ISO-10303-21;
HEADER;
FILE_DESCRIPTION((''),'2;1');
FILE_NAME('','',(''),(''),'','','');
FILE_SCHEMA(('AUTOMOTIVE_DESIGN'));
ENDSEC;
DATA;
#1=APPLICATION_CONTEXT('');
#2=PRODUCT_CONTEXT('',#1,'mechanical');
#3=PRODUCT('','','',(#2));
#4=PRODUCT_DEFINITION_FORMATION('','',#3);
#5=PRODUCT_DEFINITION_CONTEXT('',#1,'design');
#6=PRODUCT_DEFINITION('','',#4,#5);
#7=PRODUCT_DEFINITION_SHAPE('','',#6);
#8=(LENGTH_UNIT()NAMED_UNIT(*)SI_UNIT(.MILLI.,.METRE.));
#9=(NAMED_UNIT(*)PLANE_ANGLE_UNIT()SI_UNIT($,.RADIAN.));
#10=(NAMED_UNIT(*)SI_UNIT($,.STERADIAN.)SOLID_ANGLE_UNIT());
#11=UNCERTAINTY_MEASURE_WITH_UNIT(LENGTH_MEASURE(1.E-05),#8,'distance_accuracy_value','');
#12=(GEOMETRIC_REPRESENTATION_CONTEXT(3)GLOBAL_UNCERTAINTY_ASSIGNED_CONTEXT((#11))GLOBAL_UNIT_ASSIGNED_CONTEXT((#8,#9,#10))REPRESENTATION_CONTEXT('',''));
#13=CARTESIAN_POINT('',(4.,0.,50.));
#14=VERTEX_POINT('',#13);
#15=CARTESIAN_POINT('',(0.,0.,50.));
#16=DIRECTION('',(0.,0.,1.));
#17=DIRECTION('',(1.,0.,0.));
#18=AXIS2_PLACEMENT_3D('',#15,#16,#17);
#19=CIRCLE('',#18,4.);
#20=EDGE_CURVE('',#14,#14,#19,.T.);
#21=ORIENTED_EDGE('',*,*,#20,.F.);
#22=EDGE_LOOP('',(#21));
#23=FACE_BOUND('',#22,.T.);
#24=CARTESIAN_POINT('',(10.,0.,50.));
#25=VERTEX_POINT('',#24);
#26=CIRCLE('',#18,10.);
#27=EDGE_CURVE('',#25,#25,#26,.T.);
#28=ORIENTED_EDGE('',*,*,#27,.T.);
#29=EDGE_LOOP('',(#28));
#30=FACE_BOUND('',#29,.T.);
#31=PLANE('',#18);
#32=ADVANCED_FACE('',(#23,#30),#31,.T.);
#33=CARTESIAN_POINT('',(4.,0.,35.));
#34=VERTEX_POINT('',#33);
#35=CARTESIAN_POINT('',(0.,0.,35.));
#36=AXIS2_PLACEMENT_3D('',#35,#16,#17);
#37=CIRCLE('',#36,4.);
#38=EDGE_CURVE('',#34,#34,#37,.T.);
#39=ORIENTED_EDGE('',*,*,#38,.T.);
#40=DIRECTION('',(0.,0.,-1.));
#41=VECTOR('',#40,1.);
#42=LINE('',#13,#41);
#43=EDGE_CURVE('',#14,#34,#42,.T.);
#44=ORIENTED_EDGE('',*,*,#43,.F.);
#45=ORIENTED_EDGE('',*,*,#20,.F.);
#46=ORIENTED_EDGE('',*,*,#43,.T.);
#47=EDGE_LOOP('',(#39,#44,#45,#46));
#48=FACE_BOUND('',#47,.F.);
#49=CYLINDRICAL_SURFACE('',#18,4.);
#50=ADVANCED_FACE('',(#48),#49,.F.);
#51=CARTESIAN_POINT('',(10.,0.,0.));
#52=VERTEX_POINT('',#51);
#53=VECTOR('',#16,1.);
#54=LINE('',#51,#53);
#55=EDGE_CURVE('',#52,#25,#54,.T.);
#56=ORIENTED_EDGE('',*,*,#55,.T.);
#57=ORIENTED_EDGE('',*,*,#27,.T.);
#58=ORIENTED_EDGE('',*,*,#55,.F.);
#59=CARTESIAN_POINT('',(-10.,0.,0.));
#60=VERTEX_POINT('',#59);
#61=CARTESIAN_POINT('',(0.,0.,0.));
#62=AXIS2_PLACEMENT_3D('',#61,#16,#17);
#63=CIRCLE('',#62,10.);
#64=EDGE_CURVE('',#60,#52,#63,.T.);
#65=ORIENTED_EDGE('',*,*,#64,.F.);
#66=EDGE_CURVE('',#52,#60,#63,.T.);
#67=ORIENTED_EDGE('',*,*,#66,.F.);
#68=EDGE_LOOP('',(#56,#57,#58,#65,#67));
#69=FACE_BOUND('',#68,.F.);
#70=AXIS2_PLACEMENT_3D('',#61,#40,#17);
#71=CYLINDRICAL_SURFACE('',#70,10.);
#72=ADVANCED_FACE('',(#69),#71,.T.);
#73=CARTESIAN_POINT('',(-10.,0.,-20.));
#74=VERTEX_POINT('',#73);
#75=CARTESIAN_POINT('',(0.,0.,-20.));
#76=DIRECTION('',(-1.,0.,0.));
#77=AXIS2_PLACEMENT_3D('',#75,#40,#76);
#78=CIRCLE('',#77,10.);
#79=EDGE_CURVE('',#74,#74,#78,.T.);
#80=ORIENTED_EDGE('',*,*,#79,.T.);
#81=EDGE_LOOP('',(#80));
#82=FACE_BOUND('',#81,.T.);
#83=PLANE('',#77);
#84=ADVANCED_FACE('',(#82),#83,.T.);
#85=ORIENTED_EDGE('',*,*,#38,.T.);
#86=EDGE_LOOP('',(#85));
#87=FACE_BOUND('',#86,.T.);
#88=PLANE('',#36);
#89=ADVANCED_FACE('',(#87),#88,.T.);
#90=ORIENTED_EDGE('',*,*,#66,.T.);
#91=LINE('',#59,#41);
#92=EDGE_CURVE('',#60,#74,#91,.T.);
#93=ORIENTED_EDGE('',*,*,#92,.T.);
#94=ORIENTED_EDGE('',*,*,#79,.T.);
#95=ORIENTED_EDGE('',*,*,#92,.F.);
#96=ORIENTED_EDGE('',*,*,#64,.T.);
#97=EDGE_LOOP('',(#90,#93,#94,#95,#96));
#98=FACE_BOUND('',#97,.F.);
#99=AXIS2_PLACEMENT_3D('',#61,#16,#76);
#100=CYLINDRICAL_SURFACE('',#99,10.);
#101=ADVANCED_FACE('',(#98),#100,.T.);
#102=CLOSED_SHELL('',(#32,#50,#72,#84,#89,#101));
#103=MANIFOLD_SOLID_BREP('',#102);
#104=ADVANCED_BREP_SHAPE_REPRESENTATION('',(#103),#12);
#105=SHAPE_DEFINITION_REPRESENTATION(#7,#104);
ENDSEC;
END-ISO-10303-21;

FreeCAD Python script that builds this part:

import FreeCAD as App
import Part
import Sketcher

V = App.Vector
Q = App.Units.Quantity

doc = App.newDocument("Part")
body = doc.addObject("PartDesign::Body", "Body")

sketch1 = body.newObject("Sketcher::SketchObject", "Sketch")
sketch1.AttachmentSupport = (doc.getObject("XY_Plane"), [""])
sketch1.MapMode = "FlatFace"
sketch1.addGeometry(Part.Circle(V(0, 0, 0), V(0, 0, 1), 10), False)
sketch1.addConstraint([
    Sketcher.Constraint("Coincident", 0, 3, -1, 1),
    Sketcher.Constraint("Diameter", 0, Q("20 mm")),
])
pad1 = body.newObject("PartDesign::Pad", "Pad")
pad1.Profile = sketch1
pad1.Length = 50

sketch2 = body.newObject("Sketcher::SketchObject", "Sketch001")
sketch2.AttachmentSupport = (doc.getObject("XY_Plane"), [""])
sketch2.MapMode = "FlatFace"
sketch2.AttachmentOffset = App.Placement(V(0, 0, 50), App.Rotation())
sketch2.addGeometry(Part.Circle(V(0, 0, 0), V(0, 0, 1), 4), False)
sketch2.addConstraint([
    Sketcher.Constraint("Coincident", 0, 3, -1, 1),
    Sketcher.Constraint("Diameter", 0, Q("8 mm")),
])
pocket1 = body.newObject("PartDesign::Pocket", "Pocket")
pocket1.Profile = sketch2
pocket1.Length = 15

sketch3 = body.newObject("Sketcher::SketchObject", "Sketch002")
sketch3.AttachmentSupport = (doc.getObject("XY_Plane"), [""])
sketch3.MapMode = "FlatFace"
sketch3.addGeometry(Part.Circle(V(0, 0, 0), V(0, 0, 1), 10), False)
sketch3.addConstraint([
    Sketcher.Constraint("Coincident", 0, 3, -1, 1),
    Sketcher.Constraint("Diameter", 0, Q("20 mm")),
])
pad2 = body.newObject("PartDesign::Pad", "Pad001")
pad2.Profile = sketch3
pad2.Length = 20
pad2.Reversed = True

doc.recompute()
